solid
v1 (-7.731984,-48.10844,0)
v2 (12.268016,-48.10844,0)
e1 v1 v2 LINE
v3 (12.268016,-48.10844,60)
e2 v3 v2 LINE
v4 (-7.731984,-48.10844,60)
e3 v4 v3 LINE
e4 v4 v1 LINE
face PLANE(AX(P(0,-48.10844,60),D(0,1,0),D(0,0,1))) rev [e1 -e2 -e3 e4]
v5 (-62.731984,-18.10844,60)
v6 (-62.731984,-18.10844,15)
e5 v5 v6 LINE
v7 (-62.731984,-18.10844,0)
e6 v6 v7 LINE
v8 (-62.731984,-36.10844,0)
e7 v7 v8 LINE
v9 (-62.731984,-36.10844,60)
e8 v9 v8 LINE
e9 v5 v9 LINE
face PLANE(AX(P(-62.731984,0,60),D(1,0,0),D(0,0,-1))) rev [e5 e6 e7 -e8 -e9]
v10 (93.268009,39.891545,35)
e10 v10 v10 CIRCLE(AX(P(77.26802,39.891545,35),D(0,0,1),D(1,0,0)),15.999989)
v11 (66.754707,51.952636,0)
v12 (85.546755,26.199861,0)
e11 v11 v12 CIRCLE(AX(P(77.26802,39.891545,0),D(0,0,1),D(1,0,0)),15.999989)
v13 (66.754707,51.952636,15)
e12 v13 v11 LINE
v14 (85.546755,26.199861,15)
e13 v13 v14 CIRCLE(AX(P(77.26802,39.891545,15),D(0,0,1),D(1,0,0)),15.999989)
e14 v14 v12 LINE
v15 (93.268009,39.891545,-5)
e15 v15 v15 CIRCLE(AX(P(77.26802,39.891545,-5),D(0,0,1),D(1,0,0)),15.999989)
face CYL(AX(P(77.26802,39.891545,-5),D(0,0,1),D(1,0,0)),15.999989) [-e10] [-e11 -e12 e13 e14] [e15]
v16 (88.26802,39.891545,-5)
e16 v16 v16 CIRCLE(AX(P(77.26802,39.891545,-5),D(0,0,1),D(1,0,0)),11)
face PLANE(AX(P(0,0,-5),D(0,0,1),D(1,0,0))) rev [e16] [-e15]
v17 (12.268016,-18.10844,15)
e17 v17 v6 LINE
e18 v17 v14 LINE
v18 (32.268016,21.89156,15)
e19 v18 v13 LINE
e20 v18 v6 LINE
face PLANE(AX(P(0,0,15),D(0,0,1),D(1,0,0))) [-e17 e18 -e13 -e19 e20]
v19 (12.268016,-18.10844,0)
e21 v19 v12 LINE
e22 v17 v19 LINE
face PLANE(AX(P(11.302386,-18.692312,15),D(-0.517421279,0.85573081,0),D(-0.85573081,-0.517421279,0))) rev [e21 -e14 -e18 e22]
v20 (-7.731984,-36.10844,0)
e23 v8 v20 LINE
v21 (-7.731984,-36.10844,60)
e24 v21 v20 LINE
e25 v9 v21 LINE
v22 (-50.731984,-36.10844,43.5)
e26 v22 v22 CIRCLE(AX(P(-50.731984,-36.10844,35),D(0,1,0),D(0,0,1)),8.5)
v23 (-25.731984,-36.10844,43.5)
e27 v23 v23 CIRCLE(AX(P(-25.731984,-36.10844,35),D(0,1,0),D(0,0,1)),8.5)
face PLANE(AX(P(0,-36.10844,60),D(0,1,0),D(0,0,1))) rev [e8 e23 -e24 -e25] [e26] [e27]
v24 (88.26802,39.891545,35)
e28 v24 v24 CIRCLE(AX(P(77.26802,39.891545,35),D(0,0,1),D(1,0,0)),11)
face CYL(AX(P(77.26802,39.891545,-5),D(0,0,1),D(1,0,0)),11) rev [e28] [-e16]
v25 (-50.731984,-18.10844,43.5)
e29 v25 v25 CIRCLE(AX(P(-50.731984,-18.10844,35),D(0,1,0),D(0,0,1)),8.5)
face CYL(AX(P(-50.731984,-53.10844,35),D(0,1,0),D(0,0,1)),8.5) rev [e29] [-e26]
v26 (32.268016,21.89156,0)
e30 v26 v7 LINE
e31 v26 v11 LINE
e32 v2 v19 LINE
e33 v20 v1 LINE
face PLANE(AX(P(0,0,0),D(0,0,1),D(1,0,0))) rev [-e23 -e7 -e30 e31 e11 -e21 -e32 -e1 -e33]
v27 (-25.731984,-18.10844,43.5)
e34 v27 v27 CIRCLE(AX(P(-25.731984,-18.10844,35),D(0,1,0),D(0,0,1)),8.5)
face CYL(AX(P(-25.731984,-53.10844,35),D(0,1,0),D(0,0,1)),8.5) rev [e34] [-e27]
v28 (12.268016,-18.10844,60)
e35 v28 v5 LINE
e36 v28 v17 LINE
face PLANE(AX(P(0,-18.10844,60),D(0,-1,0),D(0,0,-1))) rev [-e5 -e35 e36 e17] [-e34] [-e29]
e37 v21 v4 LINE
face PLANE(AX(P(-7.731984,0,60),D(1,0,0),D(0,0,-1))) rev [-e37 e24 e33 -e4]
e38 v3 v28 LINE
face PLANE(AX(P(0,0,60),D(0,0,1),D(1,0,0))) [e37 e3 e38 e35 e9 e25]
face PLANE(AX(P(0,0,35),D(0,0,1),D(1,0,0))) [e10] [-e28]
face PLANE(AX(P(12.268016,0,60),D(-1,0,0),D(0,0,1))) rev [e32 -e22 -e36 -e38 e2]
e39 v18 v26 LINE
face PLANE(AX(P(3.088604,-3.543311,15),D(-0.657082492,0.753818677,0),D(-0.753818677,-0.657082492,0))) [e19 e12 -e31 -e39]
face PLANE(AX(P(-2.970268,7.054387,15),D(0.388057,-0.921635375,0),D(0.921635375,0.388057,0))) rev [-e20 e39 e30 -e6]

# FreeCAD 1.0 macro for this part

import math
import FreeCAD as App
import Part
import Sketcher
from FreeCAD import Vector

doc = App.newDocument("Part")
params = doc.addObject("Spreadsheet::Sheet", "Params")
for row, (alias, value) in enumerate([
    ("sketch1_width", "75 mm"),
    ("sketch1_width2", "55 mm"),
    ("sketch1_height", "18 mm"),
    ("sketch1_height2", "12 mm"),
    ("pad1_length", "60 mm"),
    ("sketch2_width", "75 mm"),
    ("pad2_length", "15 mm"),
    ("sketch3_diameter", "22 mm"),
    ("pad3_length", "35 mm"),
    ("pad3_length2", "5 mm"),
    ("sketch4_diameter", "17 mm"),
    ("pocket1_length", "35 mm"),
], start=1):
    params.set(f"A{row}", alias)
    params.set(f"B{row}", "=" + value)
    params.setAlias(f"B{row}", alias)

body = doc.addObject("PartDesign::Body", "Body")

# Sketch on XY plane
sketch1 = body.newObject("Sketcher::SketchObject", "Sketch")
sketch1.AttachmentSupport = (doc.getObject("XY_Plane"), [""])
sketch1.MapMode = "FlatFace"
sketch1.addGeometry(Part.LineSegment(Vector(12, -18, 0), Vector(-63, -18, 0)), False)
sketch1.addGeometry(Part.LineSegment(Vector(-63, -18, 0), Vector(-63, -36, 0)), False)
sketch1.addGeometry(Part.LineSegment(Vector(-63, -36, 0), Vector(-8, -36, 0)), False)
sketch1.addGeometry(Part.LineSegment(Vector(-8, -36, 0), Vector(-8, -48, 0)), False)
sketch1.addGeometry(Part.LineSegment(Vector(-8, -48, 0), Vector(12, -48, 0)), False)
sketch1.addGeometry(Part.LineSegment(Vector(12, -48, 0), Vector(12, -18, 0)), False)
sketch1.addConstraint(Sketcher.Constraint("Coincident", 0, 2, 1, 1))
sketch1.addConstraint(Sketcher.Constraint("Coincident", 1, 2, 2, 1))
sketch1.addConstraint(Sketcher.Constraint("Coincident", 2, 2, 3, 1))
sketch1.addConstraint(Sketcher.Constraint("Coincident", 3, 2, 4, 1))
sketch1.addConstraint(Sketcher.Constraint("Coincident", 4, 2, 5, 1))
sketch1.addConstraint(Sketcher.Constraint("Coincident", 5, 2, 0, 1))
sketch1.addConstraint(Sketcher.Constraint("Horizontal", 0))
sketch1.addConstraint(Sketcher.Constraint("Vertical", 1))
sketch1.addConstraint(Sketcher.Constraint("Horizontal", 2))
sketch1.addConstraint(Sketcher.Constraint("Vertical", 3))
sketch1.addConstraint(Sketcher.Constraint("Horizontal", 4))
sketch1.addConstraint(Sketcher.Constraint("Vertical", 5))
sketch1.addConstraint(Sketcher.Constraint("DistanceX", 0, 2, 0, 1, 75.0))
sketch1.addConstraint(Sketcher.Constraint("DistanceX", 2, 1, 2, 2, 55.0))
sketch1.addConstraint(Sketcher.Constraint("DistanceY", 1, 2, 1, 1, 18.0))
sketch1.addConstraint(Sketcher.Constraint("DistanceY", 3, 2, 3, 1, 12.0))
sketch1.addConstraint(Sketcher.Constraint("DistanceY", 0, 2, -1, 1, 18.10844))
sketch1.addConstraint(Sketcher.Constraint("DistanceX", 0, 2, -1, 1, 62.731984))
sketch1.setExpression("Constraints[12]", "Params.sketch1_width")
sketch1.setExpression("Constraints[13]", "Params.sketch1_width2")
sketch1.setExpression("Constraints[14]", "Params.sketch1_height")
sketch1.setExpression("Constraints[15]", "Params.sketch1_height2")
pad1 = body.newObject("PartDesign::Pad", "Pad")
pad1.Profile = sketch1
pad1.setExpression("Length", "Params.pad1_length")

# Sketch on XY plane
sketch2 = body.newObject("Sketcher::SketchObject", "Sketch001")
sketch2.AttachmentSupport = (doc.getObject("XY_Plane"), [""])
sketch2.MapMode = "FlatFace"
sketch2.addGeometry(Part.LineSegment(Vector(32, 22, 0), Vector(-63, -18, 0)), False)
sketch2.addGeometry(Part.LineSegment(Vector(-63, -18, 0), Vector(12, -18, 0)), False)
sketch2.addGeometry(Part.LineSegment(Vector(12, -18, 0), Vector(86, 26, 0)), False)
sketch2.addGeometry(Part.ArcOfCircle(Part.Circle(Vector(77, 40, 0), Vector(0, 0, 1), 16), math.radians(131), math.radians(301)), False)
sketch2.addGeometry(Part.LineSegment(Vector(67, 52, 0), Vector(32, 22, 0)), False)
sketch2.addConstraint(Sketcher.Constraint("Coincident", 0, 2, 1, 1))
sketch2.addConstraint(Sketcher.Constraint("Coincident", 1, 2, 2, 1))
sketch2.addConstraint(Sketcher.Constraint("Tangent", 2, 2, 3, 2))
sketch2.addConstraint(Sketcher.Constraint("Tangent", 3, 1, 4, 1))
sketch2.addConstraint(Sketcher.Constraint("Coincident", 4, 2, 0, 1))
sketch2.addConstraint(Sketcher.Constraint("Horizontal", 1))
sketch2.addConstraint(Sketcher.Constraint("DistanceX", 1, 1, 1, 2, 75.0))
sketch2.addConstraint(Sketcher.Constraint("DistanceX", 1, 2, 4, 2, 20.0))
sketch2.addConstraint(Sketcher.Constraint("DistanceY", 1, 2, 4, 2, 40.0))
sketch2.addConstraint(Sketcher.Constraint("Radius", 3, 15.999989))
sketch2.addConstraint(Sketcher.Constraint("DistanceY", 1, 2, 2, 2, 44.308302))
sketch2.addConstraint(Sketcher.Constraint("Distance", 4, 45.749319))
sketch2.addConstraint(Sketcher.Constraint("DistanceX", -1, 1, 3, 3, 77.26802))
sketch2.addConstraint(Sketcher.Constraint("DistanceY", 0, 2, -1, 1, 18.10844))
sketch2.setExpression("Constraints[6]", "Params.sketch2_width")
pad2 = body.newObject("PartDesign::Pad", "Pad001")
pad2.Profile = sketch2
pad2.setExpression("Length", "Params.pad2_length")

# Sketch on XY plane
sketch3 = body.newObject("Sketcher::SketchObject", "Sketch002")
sketch3.AttachmentSupport = (doc.getObject("XY_Plane"), [""])
sketch3.MapMode = "FlatFace"
sketch3.addGeometry(Part.Circle(Vector(77, 40, 0), Vector(0, 0, 1), 16), False)
sketch3.addGeometry(Part.Circle(Vector(77, 40, 0), Vector(0, 0, 1), 11), False)
sketch3.addConstraint(Sketcher.Constraint("Coincident", 1, 3, 0, 3))
sketch3.addConstraint(Sketcher.Constraint("Diameter", 1, 22.0))
sketch3.addConstraint(Sketcher.Constraint("Diameter", 0, 31.999979))
sketch3.addConstraint(Sketcher.Constraint("DistanceX", -1, 1, 0, 3, 77.26802))
sketch3.addConstraint(Sketcher.Constraint("DistanceY", -1, 1, 0, 3, 39.891545))
sketch3.setExpression("Constraints[1]", "Params.sketch3_diameter")
pad3 = body.newObject("PartDesign::Pad", "Pad002")
pad3.Profile = sketch3
pad3.Type = "TwoLengths"
pad3.setExpression("Length", "Params.pad3_length")
pad3.setExpression("Length2", "Params.pad3_length2")

# Sketch on XZ plane
sketch4 = body.newObject("Sketcher::SketchObject", "Sketch003")
sketch4.AttachmentSupport = (doc.getObject("XZ_Plane"), [""])
sketch4.MapMode = "FlatFace"
sketch4.AttachmentOffset = App.Placement(Vector(0, 0, 18.10844), App.Rotation())
sketch4.addGeometry(Part.Circle(Vector(-51, 35, 0), Vector(0, 0, 1), 8), False)
sketch4.addGeometry(Part.Circle(Vector(-26, 35, 0), Vector(0, 0, 1), 8), False)
sketch4.addConstraint(Sketcher.Constraint("Equal", 0, 1))
sketch4.addConstraint(Sketcher.Constraint("Horizontal", 0, 3, 1, 3))
sketch4.addConstraint(Sketcher.Constraint("Diameter", 0, 17.0))
sketch4.addConstraint(Sketcher.Constraint("DistanceY", -1, 1, 0, 3, 35.0))
sketch4.addConstraint(Sketcher.Constraint("DistanceX", 0, 3, 1, 3, 25.0))
sketch4.addConstraint(Sketcher.Constraint("DistanceX", 0, 3, -1, 1, 50.731984))
sketch4.setExpression("Constraints[2]", "Params.sketch4_diameter")
pocket1 = body.newObject("PartDesign::Pocket", "Pocket")
pocket1.Profile = sketch4
pocket1.setExpression("Length", "Params.pocket1_length")
pocket1.Reversed = True

doc.recompute()
